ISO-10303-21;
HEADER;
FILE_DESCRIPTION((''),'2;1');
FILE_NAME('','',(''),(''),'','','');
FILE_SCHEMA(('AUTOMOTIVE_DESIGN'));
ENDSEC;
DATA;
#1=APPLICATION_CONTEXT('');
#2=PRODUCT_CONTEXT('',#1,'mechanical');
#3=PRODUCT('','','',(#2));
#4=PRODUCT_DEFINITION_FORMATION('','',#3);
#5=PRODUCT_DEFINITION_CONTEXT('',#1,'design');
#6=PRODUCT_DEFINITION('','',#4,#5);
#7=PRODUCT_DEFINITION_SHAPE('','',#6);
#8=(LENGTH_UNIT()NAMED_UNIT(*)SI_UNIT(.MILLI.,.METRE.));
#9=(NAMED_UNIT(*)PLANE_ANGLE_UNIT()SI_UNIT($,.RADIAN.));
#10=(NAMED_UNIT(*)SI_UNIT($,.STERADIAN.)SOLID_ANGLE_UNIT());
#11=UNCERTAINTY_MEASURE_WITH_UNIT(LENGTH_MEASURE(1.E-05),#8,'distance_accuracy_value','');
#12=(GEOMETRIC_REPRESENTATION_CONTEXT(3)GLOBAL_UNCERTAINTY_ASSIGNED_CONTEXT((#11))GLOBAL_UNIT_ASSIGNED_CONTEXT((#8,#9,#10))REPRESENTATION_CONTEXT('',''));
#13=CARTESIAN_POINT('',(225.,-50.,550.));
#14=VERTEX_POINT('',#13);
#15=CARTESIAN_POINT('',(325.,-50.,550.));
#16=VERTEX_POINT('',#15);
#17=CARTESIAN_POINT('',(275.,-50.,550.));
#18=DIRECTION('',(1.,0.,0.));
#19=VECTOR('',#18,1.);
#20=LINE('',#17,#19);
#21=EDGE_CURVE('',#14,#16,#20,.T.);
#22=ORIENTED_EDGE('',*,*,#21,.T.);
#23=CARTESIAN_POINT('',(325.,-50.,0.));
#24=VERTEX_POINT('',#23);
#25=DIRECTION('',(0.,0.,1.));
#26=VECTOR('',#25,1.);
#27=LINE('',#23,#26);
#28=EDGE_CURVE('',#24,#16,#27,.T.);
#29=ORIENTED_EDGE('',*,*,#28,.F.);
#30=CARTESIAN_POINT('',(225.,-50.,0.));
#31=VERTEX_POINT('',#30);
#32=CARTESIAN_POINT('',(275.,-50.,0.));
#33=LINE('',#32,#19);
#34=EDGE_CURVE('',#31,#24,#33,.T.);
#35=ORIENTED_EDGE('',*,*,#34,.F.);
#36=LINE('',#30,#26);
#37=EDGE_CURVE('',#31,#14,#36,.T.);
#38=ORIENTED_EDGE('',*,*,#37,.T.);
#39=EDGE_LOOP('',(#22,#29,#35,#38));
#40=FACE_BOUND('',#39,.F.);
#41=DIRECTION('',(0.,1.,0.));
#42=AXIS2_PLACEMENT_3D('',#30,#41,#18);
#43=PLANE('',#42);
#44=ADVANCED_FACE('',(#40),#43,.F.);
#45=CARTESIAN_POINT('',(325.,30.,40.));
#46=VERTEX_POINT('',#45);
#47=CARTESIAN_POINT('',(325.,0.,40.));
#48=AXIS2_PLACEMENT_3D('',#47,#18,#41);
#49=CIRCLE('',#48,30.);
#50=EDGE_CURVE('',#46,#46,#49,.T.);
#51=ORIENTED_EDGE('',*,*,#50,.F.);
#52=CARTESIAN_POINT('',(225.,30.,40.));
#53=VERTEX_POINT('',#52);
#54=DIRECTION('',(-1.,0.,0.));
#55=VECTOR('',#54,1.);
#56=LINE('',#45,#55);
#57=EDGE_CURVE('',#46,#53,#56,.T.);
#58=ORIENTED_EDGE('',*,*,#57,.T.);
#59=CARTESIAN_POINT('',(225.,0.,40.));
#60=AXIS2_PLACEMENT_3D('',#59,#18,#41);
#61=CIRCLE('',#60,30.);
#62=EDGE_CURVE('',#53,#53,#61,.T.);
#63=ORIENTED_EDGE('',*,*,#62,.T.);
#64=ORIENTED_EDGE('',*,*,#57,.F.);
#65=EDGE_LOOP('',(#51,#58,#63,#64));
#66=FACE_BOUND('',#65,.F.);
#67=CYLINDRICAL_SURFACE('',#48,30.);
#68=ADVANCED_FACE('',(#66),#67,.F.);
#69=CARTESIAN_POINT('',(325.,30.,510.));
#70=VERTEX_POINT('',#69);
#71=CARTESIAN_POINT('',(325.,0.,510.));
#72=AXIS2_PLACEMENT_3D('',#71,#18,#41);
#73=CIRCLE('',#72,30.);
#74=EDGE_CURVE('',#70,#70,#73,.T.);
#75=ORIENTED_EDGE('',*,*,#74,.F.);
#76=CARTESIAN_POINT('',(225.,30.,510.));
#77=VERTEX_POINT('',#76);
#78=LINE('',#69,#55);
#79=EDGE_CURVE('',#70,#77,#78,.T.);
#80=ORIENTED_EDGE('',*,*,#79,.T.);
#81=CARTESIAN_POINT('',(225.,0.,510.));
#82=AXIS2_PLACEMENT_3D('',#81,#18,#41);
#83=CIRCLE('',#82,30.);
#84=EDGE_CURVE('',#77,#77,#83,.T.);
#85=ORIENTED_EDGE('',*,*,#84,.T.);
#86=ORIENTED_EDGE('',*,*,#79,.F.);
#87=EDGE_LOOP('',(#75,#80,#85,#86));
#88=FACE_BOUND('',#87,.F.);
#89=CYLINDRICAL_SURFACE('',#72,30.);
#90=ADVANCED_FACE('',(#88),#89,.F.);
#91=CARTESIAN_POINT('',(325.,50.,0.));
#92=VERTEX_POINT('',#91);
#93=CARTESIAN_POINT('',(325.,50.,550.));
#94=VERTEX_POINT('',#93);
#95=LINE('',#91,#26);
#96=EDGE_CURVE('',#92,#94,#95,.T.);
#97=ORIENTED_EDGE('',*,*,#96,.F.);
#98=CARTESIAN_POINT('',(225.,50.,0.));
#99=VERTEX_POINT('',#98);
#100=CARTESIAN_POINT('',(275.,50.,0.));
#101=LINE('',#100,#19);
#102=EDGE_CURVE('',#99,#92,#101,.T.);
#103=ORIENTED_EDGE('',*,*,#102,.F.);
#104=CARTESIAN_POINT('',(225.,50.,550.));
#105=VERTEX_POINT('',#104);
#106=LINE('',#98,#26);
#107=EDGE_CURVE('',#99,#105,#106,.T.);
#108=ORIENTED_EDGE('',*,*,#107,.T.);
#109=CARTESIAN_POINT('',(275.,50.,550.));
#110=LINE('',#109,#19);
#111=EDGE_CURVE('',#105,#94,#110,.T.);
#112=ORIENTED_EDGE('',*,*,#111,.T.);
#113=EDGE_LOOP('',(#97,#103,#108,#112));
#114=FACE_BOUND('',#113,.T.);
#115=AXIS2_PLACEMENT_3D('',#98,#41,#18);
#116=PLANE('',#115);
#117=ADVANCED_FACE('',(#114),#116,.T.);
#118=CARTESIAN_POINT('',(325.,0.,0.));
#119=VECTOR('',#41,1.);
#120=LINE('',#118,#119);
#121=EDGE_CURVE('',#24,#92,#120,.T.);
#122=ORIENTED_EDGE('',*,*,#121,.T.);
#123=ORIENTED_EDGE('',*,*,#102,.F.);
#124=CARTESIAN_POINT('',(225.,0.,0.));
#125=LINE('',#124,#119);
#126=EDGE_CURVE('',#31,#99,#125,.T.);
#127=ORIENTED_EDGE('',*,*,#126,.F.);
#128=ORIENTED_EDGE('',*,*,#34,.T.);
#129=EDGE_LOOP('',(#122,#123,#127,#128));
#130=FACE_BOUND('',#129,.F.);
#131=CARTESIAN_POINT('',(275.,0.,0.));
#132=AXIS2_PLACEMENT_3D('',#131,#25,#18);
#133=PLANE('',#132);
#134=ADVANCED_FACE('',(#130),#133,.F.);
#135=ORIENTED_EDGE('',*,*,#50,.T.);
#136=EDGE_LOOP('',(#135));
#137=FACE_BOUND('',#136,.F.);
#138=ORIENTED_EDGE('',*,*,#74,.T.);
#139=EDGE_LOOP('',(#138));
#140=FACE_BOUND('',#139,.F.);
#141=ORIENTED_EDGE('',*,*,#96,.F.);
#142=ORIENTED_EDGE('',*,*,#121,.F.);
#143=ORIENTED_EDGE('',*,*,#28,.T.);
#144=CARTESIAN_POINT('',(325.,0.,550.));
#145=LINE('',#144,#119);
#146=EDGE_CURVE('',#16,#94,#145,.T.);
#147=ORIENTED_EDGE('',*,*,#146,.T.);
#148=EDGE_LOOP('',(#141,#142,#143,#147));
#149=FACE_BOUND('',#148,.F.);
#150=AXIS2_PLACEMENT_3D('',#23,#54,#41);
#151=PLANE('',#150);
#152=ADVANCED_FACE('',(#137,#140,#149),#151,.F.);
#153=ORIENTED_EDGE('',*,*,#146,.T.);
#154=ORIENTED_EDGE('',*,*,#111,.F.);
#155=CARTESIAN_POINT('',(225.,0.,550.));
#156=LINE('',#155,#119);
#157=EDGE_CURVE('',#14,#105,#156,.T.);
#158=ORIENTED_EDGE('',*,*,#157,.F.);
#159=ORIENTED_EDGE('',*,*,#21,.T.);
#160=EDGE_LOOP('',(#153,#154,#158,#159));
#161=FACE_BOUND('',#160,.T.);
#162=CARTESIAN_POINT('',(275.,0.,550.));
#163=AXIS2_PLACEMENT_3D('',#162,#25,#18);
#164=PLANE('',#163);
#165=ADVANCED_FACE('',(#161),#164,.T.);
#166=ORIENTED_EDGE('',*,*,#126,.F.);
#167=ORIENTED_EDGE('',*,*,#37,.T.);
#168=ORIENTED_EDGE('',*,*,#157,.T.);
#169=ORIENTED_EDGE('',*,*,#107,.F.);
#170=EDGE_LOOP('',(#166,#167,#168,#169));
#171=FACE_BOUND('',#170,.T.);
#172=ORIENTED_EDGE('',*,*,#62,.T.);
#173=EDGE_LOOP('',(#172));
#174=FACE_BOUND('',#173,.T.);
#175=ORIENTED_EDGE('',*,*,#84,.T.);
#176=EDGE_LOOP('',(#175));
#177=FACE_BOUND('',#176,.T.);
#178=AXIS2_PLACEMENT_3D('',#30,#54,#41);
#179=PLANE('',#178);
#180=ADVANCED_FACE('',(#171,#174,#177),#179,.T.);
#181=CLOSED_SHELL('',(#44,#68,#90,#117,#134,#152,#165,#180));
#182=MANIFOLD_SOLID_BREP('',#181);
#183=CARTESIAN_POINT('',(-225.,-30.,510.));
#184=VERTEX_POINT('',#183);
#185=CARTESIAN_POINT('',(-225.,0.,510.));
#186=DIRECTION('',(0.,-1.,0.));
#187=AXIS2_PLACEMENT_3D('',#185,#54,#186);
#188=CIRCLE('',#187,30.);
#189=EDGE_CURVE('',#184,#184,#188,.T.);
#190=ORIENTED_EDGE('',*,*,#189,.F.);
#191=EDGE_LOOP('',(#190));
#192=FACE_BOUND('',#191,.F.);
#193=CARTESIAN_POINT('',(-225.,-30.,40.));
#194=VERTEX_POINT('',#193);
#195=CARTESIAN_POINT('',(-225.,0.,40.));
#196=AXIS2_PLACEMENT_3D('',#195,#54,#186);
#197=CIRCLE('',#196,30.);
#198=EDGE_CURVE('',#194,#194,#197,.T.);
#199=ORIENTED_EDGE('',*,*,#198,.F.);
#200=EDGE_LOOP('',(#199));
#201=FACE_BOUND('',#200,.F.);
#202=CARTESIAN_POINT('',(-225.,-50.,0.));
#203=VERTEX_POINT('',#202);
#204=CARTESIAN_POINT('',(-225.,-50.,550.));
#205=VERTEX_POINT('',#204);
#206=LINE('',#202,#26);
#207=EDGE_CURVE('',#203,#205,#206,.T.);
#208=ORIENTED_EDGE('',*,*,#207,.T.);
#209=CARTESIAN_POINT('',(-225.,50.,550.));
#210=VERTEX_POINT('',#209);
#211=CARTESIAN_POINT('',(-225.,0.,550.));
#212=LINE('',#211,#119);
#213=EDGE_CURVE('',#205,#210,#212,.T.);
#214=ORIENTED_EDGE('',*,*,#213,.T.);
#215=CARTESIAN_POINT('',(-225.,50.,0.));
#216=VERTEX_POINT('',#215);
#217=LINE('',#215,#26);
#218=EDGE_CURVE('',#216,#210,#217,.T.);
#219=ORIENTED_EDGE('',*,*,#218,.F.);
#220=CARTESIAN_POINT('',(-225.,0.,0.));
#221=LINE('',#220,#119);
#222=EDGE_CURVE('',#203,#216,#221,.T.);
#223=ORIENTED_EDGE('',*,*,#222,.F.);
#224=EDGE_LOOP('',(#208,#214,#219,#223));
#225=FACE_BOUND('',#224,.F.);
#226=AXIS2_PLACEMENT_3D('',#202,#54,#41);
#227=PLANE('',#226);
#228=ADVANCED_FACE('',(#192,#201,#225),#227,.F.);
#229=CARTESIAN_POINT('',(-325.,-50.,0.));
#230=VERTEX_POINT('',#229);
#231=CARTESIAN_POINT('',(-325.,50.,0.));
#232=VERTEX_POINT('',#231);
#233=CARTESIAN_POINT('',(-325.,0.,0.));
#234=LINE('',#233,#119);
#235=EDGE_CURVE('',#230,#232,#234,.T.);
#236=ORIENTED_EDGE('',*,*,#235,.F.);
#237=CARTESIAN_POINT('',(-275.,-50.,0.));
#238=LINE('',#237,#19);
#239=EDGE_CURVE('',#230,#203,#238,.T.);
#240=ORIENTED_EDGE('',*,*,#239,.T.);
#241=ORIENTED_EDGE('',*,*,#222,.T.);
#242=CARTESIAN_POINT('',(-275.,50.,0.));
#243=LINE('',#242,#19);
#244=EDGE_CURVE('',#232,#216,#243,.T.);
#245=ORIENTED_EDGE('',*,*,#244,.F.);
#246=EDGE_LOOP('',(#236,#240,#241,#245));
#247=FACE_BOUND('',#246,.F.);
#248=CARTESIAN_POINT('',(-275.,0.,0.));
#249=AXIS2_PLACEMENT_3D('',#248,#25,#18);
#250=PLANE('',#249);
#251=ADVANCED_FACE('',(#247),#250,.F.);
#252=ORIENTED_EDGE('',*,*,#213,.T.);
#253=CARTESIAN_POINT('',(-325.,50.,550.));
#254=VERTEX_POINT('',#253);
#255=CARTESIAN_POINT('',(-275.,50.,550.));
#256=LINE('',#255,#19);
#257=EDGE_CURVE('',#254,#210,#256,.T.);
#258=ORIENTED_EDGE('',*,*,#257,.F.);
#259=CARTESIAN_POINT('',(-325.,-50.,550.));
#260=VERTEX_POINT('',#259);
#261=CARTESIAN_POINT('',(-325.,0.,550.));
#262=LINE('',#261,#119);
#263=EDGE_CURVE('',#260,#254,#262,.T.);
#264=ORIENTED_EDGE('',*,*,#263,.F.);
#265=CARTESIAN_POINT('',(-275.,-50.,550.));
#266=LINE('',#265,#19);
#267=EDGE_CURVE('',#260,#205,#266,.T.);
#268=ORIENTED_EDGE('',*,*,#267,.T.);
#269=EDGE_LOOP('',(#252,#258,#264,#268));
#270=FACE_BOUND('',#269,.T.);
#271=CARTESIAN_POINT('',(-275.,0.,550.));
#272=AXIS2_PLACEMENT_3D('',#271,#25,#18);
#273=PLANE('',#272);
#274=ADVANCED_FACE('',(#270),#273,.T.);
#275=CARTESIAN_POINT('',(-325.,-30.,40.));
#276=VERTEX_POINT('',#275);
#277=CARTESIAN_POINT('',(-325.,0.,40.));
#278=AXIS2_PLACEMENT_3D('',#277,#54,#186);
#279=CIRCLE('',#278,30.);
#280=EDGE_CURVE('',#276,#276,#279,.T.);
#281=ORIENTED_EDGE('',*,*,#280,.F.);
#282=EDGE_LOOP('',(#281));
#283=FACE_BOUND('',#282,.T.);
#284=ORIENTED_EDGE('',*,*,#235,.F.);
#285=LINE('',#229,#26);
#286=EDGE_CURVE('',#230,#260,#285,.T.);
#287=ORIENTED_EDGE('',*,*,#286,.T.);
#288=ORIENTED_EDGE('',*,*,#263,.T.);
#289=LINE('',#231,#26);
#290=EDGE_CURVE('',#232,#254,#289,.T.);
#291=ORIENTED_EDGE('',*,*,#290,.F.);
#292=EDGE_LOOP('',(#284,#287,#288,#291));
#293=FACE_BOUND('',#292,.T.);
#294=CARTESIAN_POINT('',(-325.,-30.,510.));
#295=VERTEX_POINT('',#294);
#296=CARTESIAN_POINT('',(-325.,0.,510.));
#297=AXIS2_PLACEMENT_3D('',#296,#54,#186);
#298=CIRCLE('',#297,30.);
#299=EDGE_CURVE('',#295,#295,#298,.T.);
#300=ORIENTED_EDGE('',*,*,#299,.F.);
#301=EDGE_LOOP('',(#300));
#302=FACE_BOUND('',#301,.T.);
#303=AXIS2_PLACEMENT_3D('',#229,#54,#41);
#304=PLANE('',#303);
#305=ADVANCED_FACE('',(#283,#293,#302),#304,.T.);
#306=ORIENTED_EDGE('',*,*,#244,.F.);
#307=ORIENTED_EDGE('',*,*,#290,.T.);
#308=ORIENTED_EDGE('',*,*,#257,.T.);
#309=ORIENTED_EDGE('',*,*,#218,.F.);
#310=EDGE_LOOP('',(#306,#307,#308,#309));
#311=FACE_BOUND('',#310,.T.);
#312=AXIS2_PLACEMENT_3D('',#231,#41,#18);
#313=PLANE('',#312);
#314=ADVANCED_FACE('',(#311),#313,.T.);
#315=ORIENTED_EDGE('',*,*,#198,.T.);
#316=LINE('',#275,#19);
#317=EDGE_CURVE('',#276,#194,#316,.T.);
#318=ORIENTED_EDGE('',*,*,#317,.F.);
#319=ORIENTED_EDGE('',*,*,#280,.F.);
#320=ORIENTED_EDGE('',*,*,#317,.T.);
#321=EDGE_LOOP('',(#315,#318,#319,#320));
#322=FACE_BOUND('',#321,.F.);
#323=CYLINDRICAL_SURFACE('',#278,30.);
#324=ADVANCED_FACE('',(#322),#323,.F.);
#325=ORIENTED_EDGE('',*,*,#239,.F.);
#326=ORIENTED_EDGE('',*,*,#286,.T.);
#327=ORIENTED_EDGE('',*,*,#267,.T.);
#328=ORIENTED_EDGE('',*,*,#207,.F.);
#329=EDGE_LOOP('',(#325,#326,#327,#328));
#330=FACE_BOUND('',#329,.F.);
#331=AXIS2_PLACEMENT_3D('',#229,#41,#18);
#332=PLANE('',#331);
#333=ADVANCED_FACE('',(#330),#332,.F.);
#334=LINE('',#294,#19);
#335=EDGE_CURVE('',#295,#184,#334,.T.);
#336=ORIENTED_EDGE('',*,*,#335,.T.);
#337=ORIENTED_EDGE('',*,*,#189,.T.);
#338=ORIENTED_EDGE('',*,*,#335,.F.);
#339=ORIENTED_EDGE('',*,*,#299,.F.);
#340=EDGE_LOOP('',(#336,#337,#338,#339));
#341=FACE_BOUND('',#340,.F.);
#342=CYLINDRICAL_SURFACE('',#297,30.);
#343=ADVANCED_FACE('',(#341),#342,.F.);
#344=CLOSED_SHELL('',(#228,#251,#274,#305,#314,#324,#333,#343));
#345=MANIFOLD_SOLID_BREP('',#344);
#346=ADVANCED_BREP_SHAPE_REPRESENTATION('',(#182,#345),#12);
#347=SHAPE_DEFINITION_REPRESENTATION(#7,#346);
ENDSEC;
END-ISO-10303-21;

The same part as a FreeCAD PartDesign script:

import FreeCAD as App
import Part
import Sketcher

V = App.Vector

doc = App.newDocument("Part")
params = doc.addObject("Spreadsheet::Sheet", "Params")
for row, (alias, value) in enumerate([
    ("sketch1_width", "100 mm"),
    ("pad1_length", "550 mm"),
    ("sketch2_diameter", "60 mm"),
    ("pocket1_length", "100 mm"),
    ("sketch3_diameter", "60 mm"),
    ("pocket2_length", "100 mm"),
    ("sketch4_diameter", "60 mm"),
    ("pocket3_length", "100 mm"),
    ("sketch5_diameter", "60 mm"),
    ("pocket4_length", "100 mm"),
], start=1):
    params.set(f"A{row}", alias)
    params.set(f"B{row}", "=" + value)
    params.setAlias(f"B{row}", alias)

body = doc.addObject("PartDesign::Body", "Body")
body.AllowCompound = True

# Sketch on XY plane
sketch1 = doc.addObject("Sketcher::SketchObject", "Sketch")
body.addObject(sketch1)
sketch1.AttachmentSupport = (doc.XY_Plane, [""])
sketch1.MapMode = "FlatFace"
sketch1.addGeometry([
    Part.LineSegment(V(-325, 50, 0), V(-325, -50, 0)),  # 0
    Part.LineSegment(V(-325, -50, 0), V(-225, -50, 0)),  # 1
    Part.LineSegment(V(-225, -50, 0), V(-225, 50, 0)),  # 2
    Part.LineSegment(V(-225, 50, 0), V(-325, 50, 0)),  # 3
    Part.LineSegment(V(225, 50, 0), V(225, -50, 0)),  # 4
    Part.LineSegment(V(225, -50, 0), V(325, -50, 0)),  # 5
    Part.LineSegment(V(325, -50, 0), V(325, 50, 0)),  # 6
    Part.LineSegment(V(325, 50, 0), V(225, 50, 0)),  # 7
], False)
sketch1.addConstraint([
    Sketcher.Constraint("Coincident", 0, 2, 1, 1),
    Sketcher.Constraint("Coincident", 1, 2, 2, 1),
    Sketcher.Constraint("Coincident", 2, 2, 3, 1),
    Sketcher.Constraint("Coincident", 3, 2, 0, 1),
    Sketcher.Constraint("Coincident", 4, 2, 5, 1),
    Sketcher.Constraint("Coincident", 5, 2, 6, 1),
    Sketcher.Constraint("Coincident", 6, 2, 7, 1),
    Sketcher.Constraint("Coincident", 7, 2, 4, 1),
    Sketcher.Constraint("Vertical", 0),
    Sketcher.Constraint("Horizontal", 1),
    Sketcher.Constraint("Vertical", 2),
    Sketcher.Constraint("Horizontal", 3),
    Sketcher.Constraint("Vertical", 4),
    Sketcher.Constraint("Horizontal", 5),
    Sketcher.Constraint("Vertical", 6),
    Sketcher.Constraint("Horizontal", 7),
    Sketcher.Constraint("Symmetric", 2, 2, 4, 2, -1, 1),
    Sketcher.Constraint("Symmetric", 0, 2, 6, 2, -1, 1),
    Sketcher.Constraint("Horizontal", 1, 2, 4, 2),
    Sketcher.Constraint("Equal", 7, 0),
    Sketcher.Constraint("DistanceX", 1, 1, 1, 2, 100.0),
    Sketcher.Constraint("DistanceX", 0, 2, -1, 1, 325.0),
])
sketch1.setExpression("Constraints[20]", "Params.sketch1_width")
pad1 = doc.addObject("PartDesign::Pad", "Pad")
body.addObject(pad1)
pad1.Profile = sketch1
pad1.setExpression("Length", "Params.pad1_length")

# Sketch on YZ plane
sketch2 = doc.addObject("Sketcher::SketchObject", "Sketch001")
body.addObject(sketch2)
sketch2.AttachmentSupport = (doc.YZ_Plane, [""])
sketch2.MapMode = "FlatFace"
sketch2.AttachmentOffset = App.Placement(V(0, 0, -325), App.Rotation())
sketch2.addGeometry(Part.Circle(V(0, 510, 0), V(0, 0, 1), 30), False)
sketch2.addConstraint([
    Sketcher.Constraint("PointOnObject", 0, 3, -2),
    Sketcher.Constraint("Diameter", 0, 60.0),
    Sketcher.Constraint("DistanceY", -1, 1, 0, 3, 510.0),
])
sketch2.setExpression("Constraints[1]", "Params.sketch2_diameter")
pocket1 = doc.addObject("PartDesign::Pocket", "Pocket")
body.addObject(pocket1)
pocket1.Profile = sketch2
pocket1.setExpression("Length", "Params.pocket1_length")
pocket1.Reversed = True

# Sketch on YZ plane
sketch3 = doc.addObject("Sketcher::SketchObject", "Sketch002")
body.addObject(sketch3)
sketch3.AttachmentSupport = (doc.YZ_Plane, [""])
sketch3.MapMode = "FlatFace"
sketch3.AttachmentOffset = App.Placement(V(0, 0, 325), App.Rotation())
sketch3.addGeometry(Part.Circle(V(0, 510, 0), V(0, 0, 1), 30), False)
sketch3.addConstraint([
    Sketcher.Constraint("PointOnObject", 0, 3, -2),
    Sketcher.Constraint("Diameter", 0, 60.0),
    Sketcher.Constraint("DistanceY", -1, 1, 0, 3, 510.0),
])
sketch3.setExpression("Constraints[1]", "Params.sketch3_diameter")
pocket2 = doc.addObject("PartDesign::Pocket", "Pocket001")
body.addObject(pocket2)
pocket2.Profile = sketch3
pocket2.setExpression("Length", "Params.pocket2_length")

# Sketch on YZ plane
sketch4 = doc.addObject("Sketcher::SketchObject", "Sketch003")
body.addObject(sketch4)
sketch4.AttachmentSupport = (doc.YZ_Plane, [""])
sketch4.MapMode = "FlatFace"
sketch4.AttachmentOffset = App.Placement(V(0, 0, -325), App.Rotation())
sketch4.addGeometry(Part.Circle(V(0, 40, 0), V(0, 0, 1), 30), False)
sketch4.addConstraint([
    Sketcher.Constraint("PointOnObject", 0, 3, -2),
    Sketcher.Constraint("Diameter", 0, 60.0),
    Sketcher.Constraint("DistanceY", -1, 1, 0, 3, 40.0),
])
sketch4.setExpression("Constraints[1]", "Params.sketch4_diameter")
pocket3 = doc.addObject("PartDesign::Pocket", "Pocket002")
body.addObject(pocket3)
pocket3.Profile = sketch4
pocket3.setExpression("Length", "Params.pocket3_length")
pocket3.Reversed = True

# Sketch on YZ plane
sketch5 = doc.addObject("Sketcher::SketchObject", "Sketch004")
body.addObject(sketch5)
sketch5.AttachmentSupport = (doc.YZ_Plane, [""])
sketch5.MapMode = "FlatFace"
sketch5.AttachmentOffset = App.Placement(V(0, 0, 325), App.Rotation())
sketch5.addGeometry(Part.Circle(V(0, 40, 0), V(0, 0, 1), 30), False)
sketch5.addConstraint([
    Sketcher.Constraint("PointOnObject", 0, 3, -2),
    Sketcher.Constraint("Diameter", 0, 60.0),
    Sketcher.Constraint("DistanceY", -1, 1, 0, 3, 40.0),
])
sketch5.setExpression("Constraints[1]", "Params.sketch5_diameter")
pocket4 = doc.addObject("PartDesign::Pocket", "Pocket003")
body.addObject(pocket4)
pocket4.Profile = sketch5
pocket4.setExpression("Length", "Params.pocket4_length")

doc.recompute()
